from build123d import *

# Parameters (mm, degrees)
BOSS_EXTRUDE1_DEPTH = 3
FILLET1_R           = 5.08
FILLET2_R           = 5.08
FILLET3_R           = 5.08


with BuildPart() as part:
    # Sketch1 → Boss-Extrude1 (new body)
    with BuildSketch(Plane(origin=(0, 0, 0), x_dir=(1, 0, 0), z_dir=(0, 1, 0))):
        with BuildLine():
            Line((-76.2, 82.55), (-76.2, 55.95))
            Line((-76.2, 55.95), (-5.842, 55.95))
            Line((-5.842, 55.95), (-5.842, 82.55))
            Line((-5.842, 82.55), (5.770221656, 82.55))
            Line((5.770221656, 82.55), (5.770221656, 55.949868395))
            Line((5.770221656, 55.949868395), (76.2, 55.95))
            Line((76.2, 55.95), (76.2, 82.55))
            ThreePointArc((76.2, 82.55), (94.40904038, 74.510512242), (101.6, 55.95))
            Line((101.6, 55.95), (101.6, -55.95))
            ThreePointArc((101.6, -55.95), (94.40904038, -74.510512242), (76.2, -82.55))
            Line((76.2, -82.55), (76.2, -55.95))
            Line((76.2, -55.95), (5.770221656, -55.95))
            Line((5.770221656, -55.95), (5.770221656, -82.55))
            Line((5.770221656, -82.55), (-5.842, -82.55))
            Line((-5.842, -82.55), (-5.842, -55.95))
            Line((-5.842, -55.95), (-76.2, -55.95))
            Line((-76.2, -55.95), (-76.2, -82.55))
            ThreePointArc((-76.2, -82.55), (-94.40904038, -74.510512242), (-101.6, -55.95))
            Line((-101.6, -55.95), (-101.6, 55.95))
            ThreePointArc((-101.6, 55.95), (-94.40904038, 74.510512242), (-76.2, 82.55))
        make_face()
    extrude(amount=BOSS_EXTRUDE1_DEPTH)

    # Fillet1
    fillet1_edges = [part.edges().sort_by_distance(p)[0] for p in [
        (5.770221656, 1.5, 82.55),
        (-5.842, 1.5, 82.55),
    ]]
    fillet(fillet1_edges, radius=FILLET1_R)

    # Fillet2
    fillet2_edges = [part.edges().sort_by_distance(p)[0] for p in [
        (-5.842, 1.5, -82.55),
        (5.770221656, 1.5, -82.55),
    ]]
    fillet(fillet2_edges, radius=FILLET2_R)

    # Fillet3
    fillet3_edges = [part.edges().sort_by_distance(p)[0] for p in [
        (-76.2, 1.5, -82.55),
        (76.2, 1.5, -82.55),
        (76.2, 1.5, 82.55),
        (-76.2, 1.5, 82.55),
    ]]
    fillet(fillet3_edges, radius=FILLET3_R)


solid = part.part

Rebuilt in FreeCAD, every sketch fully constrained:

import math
import FreeCAD as App
import Part
import Sketcher
from FreeCAD import Vector
Q = App.Units.Quantity


def edges_at(feature, points):
    """Names of the edges that pass closest to the given points."""
    edges = feature.Shape.Edges
    near = lambda p: min(range(len(edges)), key=lambda i: edges[i].distToShape(Part.Vertex(*p))[0])
    return sorted({f"Edge{near(p) + 1}" for p in points})

doc = App.newDocument("Part")
body = doc.addObject("PartDesign::Body", "Body")

# Sketch on XZ plane
sketch1 = body.newObject("Sketcher::SketchObject", "Sketch")
sketch1.AttachmentSupport = (doc.getObject("XZ_Plane"), [""])
sketch1.MapMode = "FlatFace"
sketch1.addGeometry([
    Part.LineSegment(Vector(-76.2, -55.95, 0), Vector(-76.2, -82.55, 0)),  # 0
    Part.ArcOfCircle(Part.Circle(Vector(-75.6, -56.55, 0), Vector(0, 0, 1), 26.006922), math.radians(178.678024), math.radians(268.678024)),  # 1
    Part.LineSegment(Vector(-101.6, -55.95, 0), Vector(-101.6, 55.95, 0)),  # 2
    Part.ArcOfCircle(Part.Circle(Vector(-75.6, 56.55, 0), Vector(0, 0, 1), 26.006922), math.radians(91.321976), math.radians(181.321976)),  # 3
    Part.LineSegment(Vector(-76.2, 82.55, 0), Vector(-76.2, 55.95, 0)),  # 4
    Part.LineSegment(Vector(-76.2, 55.95, 0), Vector(-5.842, 55.95, 0)),  # 5
    Part.LineSegment(Vector(-5.842, 55.95, 0), Vector(-5.842, 82.55, 0)),  # 6
    Part.LineSegment(Vector(-5.842, 82.55, 0), Vector(5.770222, 82.55, 0)),  # 7
    Part.LineSegment(Vector(5.770222, 82.55, 0), Vector(5.770222, 55.95, 0)),  # 8
    Part.LineSegment(Vector(5.770222, 55.95, 0), Vector(76.2, 55.95, 0)),  # 9
    Part.LineSegment(Vector(76.2, 55.95, 0), Vector(76.2, 82.55, 0)),  # 10
    Part.ArcOfCircle(Part.Circle(Vector(75.6, 56.55, 0), Vector(0, 0, 1), 26.006922), math.radians(-1.321976), math.radians(88.678024)),  # 11
    Part.LineSegment(Vector(101.6, 55.95, 0), Vector(101.6, -55.95, 0)),  # 12
    Part.ArcOfCircle(Part.Circle(Vector(75.6, -56.55, 0), Vector(0, 0, 1), 26.006922), math.radians(-88.678024), math.radians(1.321976)),  # 13
    Part.LineSegment(Vector(76.2, -82.55, 0), Vector(76.2, -55.95, 0)),  # 14
    Part.LineSegment(Vector(76.2, -55.95, 0), Vector(5.770222, -55.949868, 0)),  # 15
    Part.LineSegment(Vector(5.770222, -55.949868, 0), Vector(5.770222, -82.55, 0)),  # 16
    Part.LineSegment(Vector(5.770222, -82.55, 0), Vector(-5.842, -82.55, 0)),  # 17
    Part.LineSegment(Vector(-5.842, -82.55, 0), Vector(-5.842, -55.95, 0)),  # 18
    Part.LineSegment(Vector(-5.842, -55.95, 0), Vector(-76.2, -55.95, 0)),  # 19
], False)
sketch1.addConstraint([
    Sketcher.Constraint("Coincident", 0, 2, 1, 2),
    Sketcher.Constraint("Coincident", 1, 1, 2, 1),
    Sketcher.Constraint("Coincident", 2, 2, 3, 2),
    Sketcher.Constraint("Coincident", 3, 1, 4, 1),
    Sketcher.Constraint("Coincident", 4, 2, 5, 1),
    Sketcher.Constraint("Coincident", 5, 2, 6, 1),
    Sketcher.Constraint("Coincident", 6, 2, 7, 1),
    Sketcher.Constraint("Coincident", 7, 2, 8, 1),
    Sketcher.Constraint("Coincident", 8, 2, 9, 1),
    Sketcher.Constraint("Coincident", 9, 2, 10, 1),
    Sketcher.Constraint("Coincident", 10, 2, 11, 2),
    Sketcher.Constraint("Coincident", 11, 1, 12, 1),
    Sketcher.Constraint("Coincident", 12, 2, 13, 2),
    Sketcher.Constraint("Coincident", 13, 1, 14, 1),
    Sketcher.Constraint("Coincident", 14, 2, 15, 1),
    Sketcher.Constraint("Coincident", 15, 2, 16, 1),
    Sketcher.Constraint("Coincident", 16, 2, 17, 1),
    Sketcher.Constraint("Coincident", 17, 2, 18, 1),
    Sketcher.Constraint("Coincident", 18, 2, 19, 1),
    Sketcher.Constraint("Coincident", 19, 2, 0, 1),
    Sketcher.Constraint("Vertical", 0),
    Sketcher.Constraint("Vertical", 2),
    Sketcher.Constraint("Vertical", 4),
    Sketcher.Constraint("Horizontal", 5),
    Sketcher.Constraint("Vertical", 6),
    Sketcher.Constraint("Horizontal", 7),
    Sketcher.Constraint("Vertical", 8),
    Sketcher.Constraint("Horizontal", 9),
    Sketcher.Constraint("Vertical", 10),
    Sketcher.Constraint("Vertical", 12),
    Sketcher.Constraint("Vertical", 14),
    Sketcher.Constraint("Vertical", 16),
    Sketcher.Constraint("Horizontal", 17),
    Sketcher.Constraint("Vertical", 18),
    Sketcher.Constraint("Horizontal", 19),
    Sketcher.Constraint("Equal", 1, 3),
    Sketcher.Constraint("Equal", 3, 11),
    Sketcher.Constraint("Equal", 11, 13),
    Sketcher.Constraint("Symmetric", 1, 3, 11, 3, -1, 1),
    Sketcher.Constraint("Symmetric", 3, 3, 13, 3, -1, 1),
    Sketcher.Constraint("Symmetric", 4, 2, 14, 2, -1, 1),
    Sketcher.Constraint("Symmetric", 9, 2, 19, 2, -1, 1),
    Sketcher.Constraint("Symmetric", 3, 3, 11, 3, -2),
    Sketcher.Constraint("Symmetric", 4, 2, 9, 2, -2),
    Sketcher.Constraint("Symmetric", 7, 2, 16, 2, -1),
    Sketcher.Constraint("Horizontal", 2, 2, 4, 2),
    Sketcher.Constraint("Horizontal", 3, 1, 6, 2),
    Sketcher.Constraint("Horizontal", 9, 2, 11, 1),
    Sketcher.Constraint("Vertical", 6, 2, 17, 2),
    Sketcher.Constraint("DistanceY", 0, 2, 0, 1, Q("26.6 mm")),
    Sketcher.Constraint("DistanceY", 2, 1, 2, 2, Q("111.9 mm")),
    Sketcher.Constraint("DistanceY", 0, 2, 1, 3, Q("26 mm")),
    Sketcher.Constraint("DistanceX", 1, 1, 1, 3, Q("26 mm")),
    Sketcher.Constraint("DistanceX", 1, 3, -1, 1, Q("75.6 mm")),
    Sketcher.Constraint("DistanceX", 5, 1, 5, 2, Q("70.358 mm")),
    Sketcher.Constraint("DistanceX", 7, 1, 7, 2, Q("11.612222 mm")),
    Sketcher.Constraint("DistanceY", 16, 2, 16, 1, Q("26.600132 mm")),
])
pad1 = body.newObject("PartDesign::Pad", "Pad")
pad1.Profile = sketch1
pad1.Length = 3
pad1.Reversed = True
doc.recompute()

fillet = body.newObject("PartDesign::Fillet", "Fillet")
fillet.Base = (pad1, edges_at(pad1, [(5.77, 1.5, 82.55), (-5.842, 1.5, 82.55)]))
fillet.Radius = 5.08
doc.recompute()

fillet2 = body.newObject("PartDesign::Fillet", "Fillet001")
fillet2.Base = (fillet, edges_at(fillet, [(-5.842, 1.5, -82.55), (5.77, 1.5, -82.55)]))
fillet2.Radius = 5.08
doc.recompute()

fillet3 = body.newObject("PartDesign::Fillet", "Fillet002")
fillet3.Base = (fillet2, edges_at(fillet2, [
    (-76.2, 1.5, -82.55),
    (76.2, 1.5, -82.55),
    (76.2, 1.5, 82.55),
    (-76.2, 1.5, 82.55),
]))
fillet3.Radius = 5.08

doc.recompute()
